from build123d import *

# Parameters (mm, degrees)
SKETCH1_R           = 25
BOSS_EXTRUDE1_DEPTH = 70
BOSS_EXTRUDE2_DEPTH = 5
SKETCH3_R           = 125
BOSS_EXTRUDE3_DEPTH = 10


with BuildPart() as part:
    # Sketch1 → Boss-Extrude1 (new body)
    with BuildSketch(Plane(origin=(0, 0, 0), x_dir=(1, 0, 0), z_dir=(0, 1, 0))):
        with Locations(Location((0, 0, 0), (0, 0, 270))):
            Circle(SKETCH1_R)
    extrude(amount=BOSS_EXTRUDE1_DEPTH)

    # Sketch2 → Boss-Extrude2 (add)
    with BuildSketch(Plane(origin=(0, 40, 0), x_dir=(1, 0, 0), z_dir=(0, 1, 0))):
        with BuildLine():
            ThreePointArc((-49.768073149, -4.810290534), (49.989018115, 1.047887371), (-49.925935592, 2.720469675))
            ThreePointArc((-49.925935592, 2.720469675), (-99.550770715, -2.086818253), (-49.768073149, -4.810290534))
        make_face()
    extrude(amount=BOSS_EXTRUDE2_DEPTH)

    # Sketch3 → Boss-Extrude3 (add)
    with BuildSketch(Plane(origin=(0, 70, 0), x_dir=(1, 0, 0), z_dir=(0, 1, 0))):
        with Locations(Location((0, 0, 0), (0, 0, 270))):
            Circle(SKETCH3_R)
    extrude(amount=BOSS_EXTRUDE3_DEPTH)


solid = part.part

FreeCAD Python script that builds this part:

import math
import FreeCAD as App
import Part
import Sketcher

V = App.Vector

doc = App.newDocument("Part")
body = doc.addObject("PartDesign::Body", "Body")

# Sketch on XZ plane
sketch1 = body.newObject("Sketcher::SketchObject", "Sketch")
sketch1.AttachmentSupport = (doc.getObject("XZ_Plane"), [""])
sketch1.MapMode = "FlatFace"
sketch1.addGeometry(Part.Circle(V(0, 0, 0), V(0, 0, 1), 25), False)
sketch1.addConstraint(Sketcher.Constraint("Coincident", 0, 3, -1, 1))
sketch1.addConstraint(Sketcher.Constraint("Diameter", 0, 50.0))
pad1 = body.newObject("PartDesign::Pad", "Pad")
pad1.Profile = sketch1
pad1.Length = 70
pad1.Reversed = True

# Sketch on XZ plane
sketch2 = body.newObject("Sketcher::SketchObject", "Sketch001")
sketch2.AttachmentSupport = (doc.getObject("XZ_Plane"), [""])
sketch2.MapMode = "FlatFace"
sketch2.AttachmentOffset = App.Placement(V(0, 0, -40), App.Rotation())
sketch2.addGeometry(Part.ArcOfCircle(Part.Circle(V(0, 0, 0), V(0, 0, 1), 50), math.radians(-176.881031), math.radians(174.479274)), False)
sketch2.addGeometry(Part.ArcOfCircle(Part.Circle(V(-74.556262, 1.562875, 0), V(0, 0, 1), 25), math.radians(7.46362), math.radians(350.134624)), False)
sketch2.addConstraint(Sketcher.Constraint("Coincident", 0, 1, 1, 2))
sketch2.addConstraint(Sketcher.Constraint("Coincident", 1, 1, 0, 2))
sketch2.addConstraint(Sketcher.Constraint("Coincident", 0, 3, -1, 1))
sketch2.addConstraint(Sketcher.Constraint("Radius", 0, 50.0))
sketch2.addConstraint(Sketcher.Constraint("Radius", 1, 25.0))
sketch2.addConstraint(Sketcher.Constraint("DistanceX", 1, 3, -1, 1, 74.556262))
sketch2.addConstraint(Sketcher.Constraint("DistanceY", 0, 1, -1, 1, 2.72047))
pad2 = body.newObject("PartDesign::Pad", "Pad001")
pad2.Profile = sketch2
pad2.Length = 5
pad2.Reversed = True

# Sketch on XZ plane
sketch3 = body.newObject("Sketcher::SketchObject", "Sketch002")
sketch3.AttachmentSupport = (doc.getObject("XZ_Plane"), [""])
sketch3.MapMode = "FlatFace"
sketch3.AttachmentOffset = App.Placement(V(0, 0, -70), App.Rotation())
sketch3.addGeometry(Part.Circle(V(0, 0, 0), V(0, 0, 1), 125), False)
sketch3.addConstraint(Sketcher.Constraint("Coincident", 0, 3, -1, 1))
sketch3.addConstraint(Sketcher.Constraint("Diameter", 0, 250.0))
pad3 = body.newObject("PartDesign::Pad", "Pad002")
pad3.Profile = sketch3
pad3.Length = 10
pad3.Reversed = True

doc.recompute()
